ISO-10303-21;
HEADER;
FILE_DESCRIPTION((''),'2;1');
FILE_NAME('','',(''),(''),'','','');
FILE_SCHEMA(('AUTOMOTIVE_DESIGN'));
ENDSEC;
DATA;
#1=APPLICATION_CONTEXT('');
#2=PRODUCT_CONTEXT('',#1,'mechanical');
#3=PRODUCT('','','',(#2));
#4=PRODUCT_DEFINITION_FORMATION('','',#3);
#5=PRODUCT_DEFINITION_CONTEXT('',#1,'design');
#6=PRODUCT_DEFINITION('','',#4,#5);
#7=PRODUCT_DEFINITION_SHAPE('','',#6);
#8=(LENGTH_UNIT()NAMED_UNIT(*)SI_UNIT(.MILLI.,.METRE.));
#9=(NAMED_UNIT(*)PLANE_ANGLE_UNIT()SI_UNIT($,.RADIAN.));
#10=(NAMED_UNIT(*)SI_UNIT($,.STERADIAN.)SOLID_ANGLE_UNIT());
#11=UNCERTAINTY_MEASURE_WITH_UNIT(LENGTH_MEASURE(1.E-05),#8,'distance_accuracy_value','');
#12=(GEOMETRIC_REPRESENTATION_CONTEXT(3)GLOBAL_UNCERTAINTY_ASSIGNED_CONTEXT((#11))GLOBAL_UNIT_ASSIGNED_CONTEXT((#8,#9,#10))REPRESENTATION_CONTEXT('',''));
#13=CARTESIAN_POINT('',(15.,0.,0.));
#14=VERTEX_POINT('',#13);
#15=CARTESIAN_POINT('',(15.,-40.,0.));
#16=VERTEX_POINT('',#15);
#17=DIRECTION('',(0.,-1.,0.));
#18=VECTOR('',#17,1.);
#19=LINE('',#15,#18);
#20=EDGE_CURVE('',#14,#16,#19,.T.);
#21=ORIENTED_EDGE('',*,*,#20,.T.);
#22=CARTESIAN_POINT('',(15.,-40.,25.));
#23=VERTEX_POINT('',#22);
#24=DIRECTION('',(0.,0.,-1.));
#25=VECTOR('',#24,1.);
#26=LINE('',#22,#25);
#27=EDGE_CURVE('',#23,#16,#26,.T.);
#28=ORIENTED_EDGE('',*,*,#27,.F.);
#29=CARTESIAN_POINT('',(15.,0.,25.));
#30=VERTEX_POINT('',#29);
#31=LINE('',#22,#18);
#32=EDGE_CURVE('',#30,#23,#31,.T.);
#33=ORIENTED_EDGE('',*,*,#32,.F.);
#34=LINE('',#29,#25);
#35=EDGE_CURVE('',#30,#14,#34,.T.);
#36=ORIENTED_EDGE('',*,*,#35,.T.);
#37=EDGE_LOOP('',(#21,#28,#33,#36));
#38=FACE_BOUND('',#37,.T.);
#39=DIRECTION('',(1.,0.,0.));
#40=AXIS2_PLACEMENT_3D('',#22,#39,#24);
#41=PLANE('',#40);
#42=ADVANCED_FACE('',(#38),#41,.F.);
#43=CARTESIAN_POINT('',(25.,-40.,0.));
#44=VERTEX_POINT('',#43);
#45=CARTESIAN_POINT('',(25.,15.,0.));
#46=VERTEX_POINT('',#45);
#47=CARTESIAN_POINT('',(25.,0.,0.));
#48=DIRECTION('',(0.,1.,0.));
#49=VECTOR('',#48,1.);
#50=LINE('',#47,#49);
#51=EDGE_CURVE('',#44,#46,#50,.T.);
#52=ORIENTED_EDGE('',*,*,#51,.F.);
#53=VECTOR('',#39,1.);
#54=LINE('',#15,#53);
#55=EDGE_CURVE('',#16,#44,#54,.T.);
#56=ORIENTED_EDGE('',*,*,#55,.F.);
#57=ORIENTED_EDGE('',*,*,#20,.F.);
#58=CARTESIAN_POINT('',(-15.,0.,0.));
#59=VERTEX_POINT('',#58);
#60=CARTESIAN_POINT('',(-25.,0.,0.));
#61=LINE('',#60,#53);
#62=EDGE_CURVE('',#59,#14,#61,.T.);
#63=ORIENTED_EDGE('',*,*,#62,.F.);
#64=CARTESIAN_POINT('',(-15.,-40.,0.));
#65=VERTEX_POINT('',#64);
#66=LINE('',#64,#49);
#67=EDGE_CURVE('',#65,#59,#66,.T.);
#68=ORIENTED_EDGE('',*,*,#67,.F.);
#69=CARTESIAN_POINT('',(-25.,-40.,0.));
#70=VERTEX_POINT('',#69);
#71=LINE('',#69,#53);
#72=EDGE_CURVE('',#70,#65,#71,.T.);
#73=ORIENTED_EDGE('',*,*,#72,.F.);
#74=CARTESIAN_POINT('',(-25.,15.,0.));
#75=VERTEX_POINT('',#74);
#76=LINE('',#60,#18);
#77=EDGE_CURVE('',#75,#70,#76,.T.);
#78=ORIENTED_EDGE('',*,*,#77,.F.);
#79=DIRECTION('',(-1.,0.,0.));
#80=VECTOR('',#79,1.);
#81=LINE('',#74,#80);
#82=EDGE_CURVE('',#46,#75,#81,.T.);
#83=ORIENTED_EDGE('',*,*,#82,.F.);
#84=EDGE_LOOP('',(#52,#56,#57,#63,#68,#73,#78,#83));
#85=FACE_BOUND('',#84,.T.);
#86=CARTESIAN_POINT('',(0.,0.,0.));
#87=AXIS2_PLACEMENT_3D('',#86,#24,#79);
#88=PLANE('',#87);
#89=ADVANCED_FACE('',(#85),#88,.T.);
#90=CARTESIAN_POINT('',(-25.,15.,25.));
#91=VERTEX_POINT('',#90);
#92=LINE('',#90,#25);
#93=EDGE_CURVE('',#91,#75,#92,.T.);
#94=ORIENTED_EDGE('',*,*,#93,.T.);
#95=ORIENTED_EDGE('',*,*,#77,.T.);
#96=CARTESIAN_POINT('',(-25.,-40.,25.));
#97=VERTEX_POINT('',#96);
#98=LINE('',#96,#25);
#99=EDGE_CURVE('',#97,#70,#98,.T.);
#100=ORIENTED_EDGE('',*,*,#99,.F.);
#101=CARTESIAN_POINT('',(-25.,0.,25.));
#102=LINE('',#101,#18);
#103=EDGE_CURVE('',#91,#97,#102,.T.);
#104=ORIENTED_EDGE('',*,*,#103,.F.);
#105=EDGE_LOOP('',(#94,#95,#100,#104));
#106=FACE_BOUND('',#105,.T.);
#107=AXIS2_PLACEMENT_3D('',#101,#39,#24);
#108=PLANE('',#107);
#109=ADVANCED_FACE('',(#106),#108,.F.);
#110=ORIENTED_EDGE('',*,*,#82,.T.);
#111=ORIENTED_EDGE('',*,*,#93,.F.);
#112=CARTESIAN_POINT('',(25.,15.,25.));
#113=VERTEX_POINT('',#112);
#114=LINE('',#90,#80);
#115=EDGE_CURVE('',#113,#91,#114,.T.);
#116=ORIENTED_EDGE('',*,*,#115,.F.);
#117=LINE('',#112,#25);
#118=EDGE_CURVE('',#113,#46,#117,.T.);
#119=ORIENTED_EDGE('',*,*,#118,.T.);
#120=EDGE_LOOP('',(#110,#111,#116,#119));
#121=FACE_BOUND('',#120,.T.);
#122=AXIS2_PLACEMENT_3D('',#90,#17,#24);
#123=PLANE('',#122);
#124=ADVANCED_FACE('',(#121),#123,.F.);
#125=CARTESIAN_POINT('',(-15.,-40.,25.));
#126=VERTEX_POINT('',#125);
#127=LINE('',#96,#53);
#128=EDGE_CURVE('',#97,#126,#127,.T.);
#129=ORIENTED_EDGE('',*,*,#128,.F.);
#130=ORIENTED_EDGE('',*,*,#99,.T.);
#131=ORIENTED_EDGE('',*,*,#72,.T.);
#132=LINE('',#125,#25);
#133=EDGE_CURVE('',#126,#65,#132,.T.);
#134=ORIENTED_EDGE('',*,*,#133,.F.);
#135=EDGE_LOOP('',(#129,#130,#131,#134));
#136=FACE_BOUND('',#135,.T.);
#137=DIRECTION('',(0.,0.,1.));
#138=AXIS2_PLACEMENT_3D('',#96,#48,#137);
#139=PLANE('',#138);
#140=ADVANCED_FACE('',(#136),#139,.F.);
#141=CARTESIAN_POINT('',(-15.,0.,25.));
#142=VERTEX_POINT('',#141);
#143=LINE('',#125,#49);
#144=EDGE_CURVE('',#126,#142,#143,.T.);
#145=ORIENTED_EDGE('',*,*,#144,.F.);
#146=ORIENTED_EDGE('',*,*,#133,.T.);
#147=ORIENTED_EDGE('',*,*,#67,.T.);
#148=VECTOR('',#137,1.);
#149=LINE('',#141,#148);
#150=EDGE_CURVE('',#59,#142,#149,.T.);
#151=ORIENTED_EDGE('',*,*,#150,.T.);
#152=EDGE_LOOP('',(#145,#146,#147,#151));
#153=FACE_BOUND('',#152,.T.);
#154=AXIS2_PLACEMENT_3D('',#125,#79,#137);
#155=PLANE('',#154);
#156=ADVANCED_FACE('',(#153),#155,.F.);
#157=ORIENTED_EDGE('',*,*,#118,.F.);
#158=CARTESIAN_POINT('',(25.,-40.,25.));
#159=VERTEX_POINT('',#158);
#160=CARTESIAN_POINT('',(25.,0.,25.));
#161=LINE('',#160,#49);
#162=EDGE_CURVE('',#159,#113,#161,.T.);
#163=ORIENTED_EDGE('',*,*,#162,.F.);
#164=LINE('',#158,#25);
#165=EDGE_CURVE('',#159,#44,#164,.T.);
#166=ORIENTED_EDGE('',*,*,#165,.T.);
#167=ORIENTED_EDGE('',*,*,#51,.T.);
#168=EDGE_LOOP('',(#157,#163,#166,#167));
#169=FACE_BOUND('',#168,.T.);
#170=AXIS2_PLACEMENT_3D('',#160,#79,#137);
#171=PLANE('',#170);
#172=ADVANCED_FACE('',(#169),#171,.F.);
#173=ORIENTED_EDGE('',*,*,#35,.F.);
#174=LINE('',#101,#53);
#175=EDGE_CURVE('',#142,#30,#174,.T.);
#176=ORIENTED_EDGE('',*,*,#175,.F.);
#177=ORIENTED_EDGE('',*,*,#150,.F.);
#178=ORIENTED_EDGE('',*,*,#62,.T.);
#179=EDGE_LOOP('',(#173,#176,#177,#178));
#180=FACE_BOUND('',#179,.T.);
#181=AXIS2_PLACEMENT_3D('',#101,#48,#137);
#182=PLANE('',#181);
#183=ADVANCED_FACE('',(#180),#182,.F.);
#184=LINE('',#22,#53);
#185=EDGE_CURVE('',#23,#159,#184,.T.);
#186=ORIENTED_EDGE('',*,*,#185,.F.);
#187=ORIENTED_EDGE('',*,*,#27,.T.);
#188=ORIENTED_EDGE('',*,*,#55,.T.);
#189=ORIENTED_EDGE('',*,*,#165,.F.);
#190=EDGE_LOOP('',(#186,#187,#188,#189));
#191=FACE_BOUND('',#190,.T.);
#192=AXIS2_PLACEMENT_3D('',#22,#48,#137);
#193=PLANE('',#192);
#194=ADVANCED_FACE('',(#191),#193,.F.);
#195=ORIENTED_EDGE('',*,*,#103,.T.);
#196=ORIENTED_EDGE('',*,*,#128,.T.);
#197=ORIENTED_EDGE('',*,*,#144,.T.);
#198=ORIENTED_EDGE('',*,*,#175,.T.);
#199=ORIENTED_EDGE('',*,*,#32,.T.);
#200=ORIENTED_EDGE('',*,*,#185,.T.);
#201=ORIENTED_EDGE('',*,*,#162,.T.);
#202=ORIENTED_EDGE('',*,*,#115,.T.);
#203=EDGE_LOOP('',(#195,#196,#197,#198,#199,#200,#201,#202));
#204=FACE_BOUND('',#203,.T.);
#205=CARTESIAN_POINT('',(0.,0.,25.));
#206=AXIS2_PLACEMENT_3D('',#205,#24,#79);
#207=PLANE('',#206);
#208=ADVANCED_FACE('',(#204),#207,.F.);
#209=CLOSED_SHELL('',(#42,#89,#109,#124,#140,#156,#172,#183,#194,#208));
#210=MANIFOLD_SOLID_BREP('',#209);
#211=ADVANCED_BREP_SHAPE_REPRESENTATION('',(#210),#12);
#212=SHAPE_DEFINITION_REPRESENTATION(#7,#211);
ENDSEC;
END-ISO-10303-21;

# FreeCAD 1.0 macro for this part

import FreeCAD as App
import Part
import Sketcher

V = App.Vector

doc = App.newDocument("Part")
body = doc.addObject("PartDesign::Body", "Body")

sketch1 = body.newObject("Sketcher::SketchObject", "Sketch")
sketch1.AttachmentSupport = (doc.getObject("XY_Plane"), [""])
sketch1.MapMode = "FlatFace"
sketch1.addGeometry([
    Part.LineSegment(V(-25, 15, 0), V(-25, 0, 0)),
    Part.LineSegment(V(-25, 0, 0), V(25, 0, 0)),
    Part.LineSegment(V(25, 0, 0), V(25, 15, 0)),
    Part.LineSegment(V(25, 15, 0), V(-25, 15, 0)),
], False)
sketch1.addConstraint([
    Sketcher.Constraint("Coincident", 0, 2, 1, 1),
    Sketcher.Constraint("Coincident", 1, 2, 2, 1),
    Sketcher.Constraint("Coincident", 2, 2, 3, 1),
    Sketcher.Constraint("Coincident", 3, 2, 0, 1),
    Sketcher.Constraint("Vertical", 0),
    Sketcher.Constraint("Horizontal", 1),
    Sketcher.Constraint("Vertical", 2),
    Sketcher.Constraint("Horizontal", 3),
    Sketcher.Constraint("Symmetric", 0, 2, 1, 2, -1, 1),
    Sketcher.Constraint("DistanceX", 1, 1, 1, 2, 50.0),
    Sketcher.Constraint("DistanceY", 0, 2, 0, 1, 15.0),
])
pad1 = body.newObject("PartDesign::Pad", "Pad")
pad1.Profile = sketch1
pad1.Length = 25

sketch2 = body.newObject("Sketcher::SketchObject", "Sketch001")
sketch2.AttachmentSupport = (doc.getObject("XY_Plane"), [""])
sketch2.MapMode = "FlatFace"
sketch2.addGeometry([
    Part.LineSegment(V(-25, 1, 0), V(-25, -40, 0)),
    Part.LineSegment(V(-25, -40, 0), V(-15, -40, 0)),
    Part.LineSegment(V(-15, -40, 0), V(-15, 1, 0)),
    Part.LineSegment(V(-15, 1, 0), V(-25, 1, 0)),
], False)
sketch2.addConstraint([
    Sketcher.Constraint("Coincident", 0, 2, 1, 1),
    Sketcher.Constraint("Coincident", 1, 2, 2, 1),
    Sketcher.Constraint("Coincident", 2, 2, 3, 1),
    Sketcher.Constraint("Coincident", 3, 2, 0, 1),
    Sketcher.Constraint("Vertical", 0),
    Sketcher.Constraint("Horizontal", 1),
    Sketcher.Constraint("Vertical", 2),
    Sketcher.Constraint("Horizontal", 3),
    Sketcher.Constraint("DistanceX", 1, 1, 1, 2, 10.0),
    Sketcher.Constraint("DistanceY", 0, 2, 0, 1, 41.0),
    Sketcher.Constraint("DistanceX", 0, 2, -1, 1, 25.0),
    Sketcher.Constraint("DistanceY", 0, 2, -1, 1, 40.0),
])
pad2 = body.newObject("PartDesign::Pad", "Pad001")
pad2.Profile = sketch2
pad2.Length = 25

sketch3 = body.newObject("Sketcher::SketchObject", "Sketch002")
sketch3.AttachmentSupport = (doc.getObject("XY_Plane"), [""])
sketch3.MapMode = "FlatFace"
sketch3.addGeometry([
    Part.LineSegment(V(15, 1, 0), V(15, -40, 0)),
    Part.LineSegment(V(15, -40, 0), V(25, -40, 0)),
    Part.LineSegment(V(25, -40, 0), V(25, 1, 0)),
    Part.LineSegment(V(25, 1, 0), V(15, 1, 0)),
], False)
sketch3.addConstraint([
    Sketcher.Constraint("Coincident", 0, 2, 1, 1),
    Sketcher.Constraint("Coincident", 1, 2, 2, 1),
    Sketcher.Constraint("Coincident", 2, 2, 3, 1),
    Sketcher.Constraint("Coincident", 3, 2, 0, 1),
    Sketcher.Constraint("Vertical", 0),
    Sketcher.Constraint("Horizontal", 1),
    Sketcher.Constraint("Vertical", 2),
    Sketcher.Constraint("Horizontal", 3),
    Sketcher.Constraint("DistanceX", 1, 1, 1, 2, 10.0),
    Sketcher.Constraint("DistanceY", 0, 2, 0, 1, 41.0),
    Sketcher.Constraint("DistanceX", -1, 1, 0, 2, 15.0),
    Sketcher.Constraint("DistanceY", 0, 2, -1, 1, 40.0),
])
pad3 = body.newObject("PartDesign::Pad", "Pad002")
pad3.Profile = sketch3
pad3.Length = 25

doc.recompute()
